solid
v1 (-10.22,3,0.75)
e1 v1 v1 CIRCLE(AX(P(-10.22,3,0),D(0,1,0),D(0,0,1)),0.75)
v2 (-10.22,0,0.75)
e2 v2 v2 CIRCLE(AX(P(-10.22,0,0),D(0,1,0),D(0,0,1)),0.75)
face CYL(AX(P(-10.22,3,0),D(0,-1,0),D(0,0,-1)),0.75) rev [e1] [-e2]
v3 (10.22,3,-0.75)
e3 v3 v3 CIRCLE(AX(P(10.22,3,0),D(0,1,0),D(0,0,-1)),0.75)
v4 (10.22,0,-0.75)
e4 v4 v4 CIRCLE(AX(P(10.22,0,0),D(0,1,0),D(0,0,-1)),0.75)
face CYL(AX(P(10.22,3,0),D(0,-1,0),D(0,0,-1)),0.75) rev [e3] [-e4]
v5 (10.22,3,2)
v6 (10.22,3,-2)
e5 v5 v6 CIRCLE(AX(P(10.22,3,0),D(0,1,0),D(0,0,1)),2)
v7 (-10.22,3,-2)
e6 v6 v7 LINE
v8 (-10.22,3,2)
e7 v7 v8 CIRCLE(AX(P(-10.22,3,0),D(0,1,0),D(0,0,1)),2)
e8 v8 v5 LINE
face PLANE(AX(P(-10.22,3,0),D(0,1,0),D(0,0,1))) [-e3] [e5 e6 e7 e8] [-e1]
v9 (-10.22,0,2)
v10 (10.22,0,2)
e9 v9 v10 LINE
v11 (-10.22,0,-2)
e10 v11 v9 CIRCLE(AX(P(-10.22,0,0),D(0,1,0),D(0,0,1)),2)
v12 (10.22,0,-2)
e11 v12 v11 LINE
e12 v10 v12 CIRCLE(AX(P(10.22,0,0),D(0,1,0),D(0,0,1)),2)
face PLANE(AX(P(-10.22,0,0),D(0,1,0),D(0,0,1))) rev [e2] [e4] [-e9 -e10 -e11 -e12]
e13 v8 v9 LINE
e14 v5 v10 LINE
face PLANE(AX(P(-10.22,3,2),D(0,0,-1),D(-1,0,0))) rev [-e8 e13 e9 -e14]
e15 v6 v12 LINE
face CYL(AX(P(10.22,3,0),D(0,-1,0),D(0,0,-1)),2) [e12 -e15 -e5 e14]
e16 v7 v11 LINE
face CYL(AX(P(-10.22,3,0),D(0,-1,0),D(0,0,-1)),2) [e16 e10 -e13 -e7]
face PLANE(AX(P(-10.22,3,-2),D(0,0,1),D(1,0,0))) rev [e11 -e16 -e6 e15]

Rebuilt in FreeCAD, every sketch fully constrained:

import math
import FreeCAD as App
import Part
import Sketcher
from FreeCAD import Vector
Q = App.Units.Quantity

doc = App.newDocument("Part")
params = doc.addObject("Spreadsheet::Sheet", "Params")
for row, (alias, value) in enumerate([
    ("sketch1_radius", "2 mm"),
    ("sketch1_diameter", "1.5 mm"),
    ("sketch1_width", "20.44 mm"),
    ("pad1_length", "3 mm"),
], start=1):
    params.set(f"A{row}", alias)
    params.set(f"B{row}", "=" + value)
    params.setAlias(f"B{row}", alias)

body = doc.addObject("PartDesign::Body", "Body")

sketch1 = doc.addObject("Sketcher::SketchObject", "Sketch")
body.addObject(sketch1)
sketch1.AttachmentSupport = (doc.XZ_Plane, [""])
sketch1.MapMode = "FlatFace"
sketch1.addGeometry(Part.LineSegment(Vector(10.22, -2, 0), Vector(-10.22, -2, 0)), False)
sketch1.addGeometry(Part.ArcOfCircle(Part.Circle(Vector(-10.22, 0, 0), Vector(0, 0, 1), 2), math.radians(90), math.radians(270)), False)
sketch1.addGeometry(Part.LineSegment(Vector(-10.22, 2, 0), Vector(10.22, 2, 0)), False)
sketch1.addGeometry(Part.ArcOfCircle(Part.Circle(Vector(10.22, 0, 0), Vector(0, 0, 1), 2), math.radians(-90), math.radians(90)), False)
sketch1.addGeometry(Part.Circle(Vector(10.22, 0, 0), Vector(0, 0, 1), 0.75), False)
sketch1.addGeometry(Part.Circle(Vector(-10.22, 0, 0), Vector(0, 0, 1), 0.75), False)
sketch1.addConstraint(Sketcher.Constraint("Tangent", 0, 2, 1, 2))
sketch1.addConstraint(Sketcher.Constraint("Tangent", 1, 1, 2, 1))
sketch1.addConstraint(Sketcher.Constraint("Tangent", 2, 2, 3, 2))
sketch1.addConstraint(Sketcher.Constraint("Tangent", 3, 1, 0, 1))
sketch1.addConstraint(Sketcher.Constraint("Horizontal", 0))
sketch1.addConstraint(Sketcher.Constraint("Horizontal", 2))
sketch1.addConstraint(Sketcher.Constraint("Coincident", 4, 3, 3, 3))
sketch1.addConstraint(Sketcher.Constraint("Coincident", 5, 3, 1, 3))
sketch1.addConstraint(Sketcher.Constraint("Equal", 4, 5))
sketch1.addConstraint(Sketcher.Constraint("Symmetric", 1, 3, 3, 3, -1, 1))
sketch1.addConstraint(Sketcher.Constraint("Radius", 1, Q("2 mm")))
sketch1.addConstraint(Sketcher.Constraint("Diameter", 4, Q("1.5 mm")))
sketch1.addConstraint(Sketcher.Constraint("DistanceX", 0, 2, 0, 1, Q("20.44 mm")))
sketch1.setExpression("Constraints[10]", "Params.sketch1_radius")
sketch1.setExpression("Constraints[11]", "Params.sketch1_diameter")
sketch1.setExpression("Constraints[12]", "Params.sketch1_width")
pad1 = doc.addObject("PartDesign::Pad", "Pad")
body.addObject(pad1)
pad1.Profile = sketch1
pad1.setExpression("Length", "Params.pad1_length")
pad1.Reversed = True

doc.recompute()
